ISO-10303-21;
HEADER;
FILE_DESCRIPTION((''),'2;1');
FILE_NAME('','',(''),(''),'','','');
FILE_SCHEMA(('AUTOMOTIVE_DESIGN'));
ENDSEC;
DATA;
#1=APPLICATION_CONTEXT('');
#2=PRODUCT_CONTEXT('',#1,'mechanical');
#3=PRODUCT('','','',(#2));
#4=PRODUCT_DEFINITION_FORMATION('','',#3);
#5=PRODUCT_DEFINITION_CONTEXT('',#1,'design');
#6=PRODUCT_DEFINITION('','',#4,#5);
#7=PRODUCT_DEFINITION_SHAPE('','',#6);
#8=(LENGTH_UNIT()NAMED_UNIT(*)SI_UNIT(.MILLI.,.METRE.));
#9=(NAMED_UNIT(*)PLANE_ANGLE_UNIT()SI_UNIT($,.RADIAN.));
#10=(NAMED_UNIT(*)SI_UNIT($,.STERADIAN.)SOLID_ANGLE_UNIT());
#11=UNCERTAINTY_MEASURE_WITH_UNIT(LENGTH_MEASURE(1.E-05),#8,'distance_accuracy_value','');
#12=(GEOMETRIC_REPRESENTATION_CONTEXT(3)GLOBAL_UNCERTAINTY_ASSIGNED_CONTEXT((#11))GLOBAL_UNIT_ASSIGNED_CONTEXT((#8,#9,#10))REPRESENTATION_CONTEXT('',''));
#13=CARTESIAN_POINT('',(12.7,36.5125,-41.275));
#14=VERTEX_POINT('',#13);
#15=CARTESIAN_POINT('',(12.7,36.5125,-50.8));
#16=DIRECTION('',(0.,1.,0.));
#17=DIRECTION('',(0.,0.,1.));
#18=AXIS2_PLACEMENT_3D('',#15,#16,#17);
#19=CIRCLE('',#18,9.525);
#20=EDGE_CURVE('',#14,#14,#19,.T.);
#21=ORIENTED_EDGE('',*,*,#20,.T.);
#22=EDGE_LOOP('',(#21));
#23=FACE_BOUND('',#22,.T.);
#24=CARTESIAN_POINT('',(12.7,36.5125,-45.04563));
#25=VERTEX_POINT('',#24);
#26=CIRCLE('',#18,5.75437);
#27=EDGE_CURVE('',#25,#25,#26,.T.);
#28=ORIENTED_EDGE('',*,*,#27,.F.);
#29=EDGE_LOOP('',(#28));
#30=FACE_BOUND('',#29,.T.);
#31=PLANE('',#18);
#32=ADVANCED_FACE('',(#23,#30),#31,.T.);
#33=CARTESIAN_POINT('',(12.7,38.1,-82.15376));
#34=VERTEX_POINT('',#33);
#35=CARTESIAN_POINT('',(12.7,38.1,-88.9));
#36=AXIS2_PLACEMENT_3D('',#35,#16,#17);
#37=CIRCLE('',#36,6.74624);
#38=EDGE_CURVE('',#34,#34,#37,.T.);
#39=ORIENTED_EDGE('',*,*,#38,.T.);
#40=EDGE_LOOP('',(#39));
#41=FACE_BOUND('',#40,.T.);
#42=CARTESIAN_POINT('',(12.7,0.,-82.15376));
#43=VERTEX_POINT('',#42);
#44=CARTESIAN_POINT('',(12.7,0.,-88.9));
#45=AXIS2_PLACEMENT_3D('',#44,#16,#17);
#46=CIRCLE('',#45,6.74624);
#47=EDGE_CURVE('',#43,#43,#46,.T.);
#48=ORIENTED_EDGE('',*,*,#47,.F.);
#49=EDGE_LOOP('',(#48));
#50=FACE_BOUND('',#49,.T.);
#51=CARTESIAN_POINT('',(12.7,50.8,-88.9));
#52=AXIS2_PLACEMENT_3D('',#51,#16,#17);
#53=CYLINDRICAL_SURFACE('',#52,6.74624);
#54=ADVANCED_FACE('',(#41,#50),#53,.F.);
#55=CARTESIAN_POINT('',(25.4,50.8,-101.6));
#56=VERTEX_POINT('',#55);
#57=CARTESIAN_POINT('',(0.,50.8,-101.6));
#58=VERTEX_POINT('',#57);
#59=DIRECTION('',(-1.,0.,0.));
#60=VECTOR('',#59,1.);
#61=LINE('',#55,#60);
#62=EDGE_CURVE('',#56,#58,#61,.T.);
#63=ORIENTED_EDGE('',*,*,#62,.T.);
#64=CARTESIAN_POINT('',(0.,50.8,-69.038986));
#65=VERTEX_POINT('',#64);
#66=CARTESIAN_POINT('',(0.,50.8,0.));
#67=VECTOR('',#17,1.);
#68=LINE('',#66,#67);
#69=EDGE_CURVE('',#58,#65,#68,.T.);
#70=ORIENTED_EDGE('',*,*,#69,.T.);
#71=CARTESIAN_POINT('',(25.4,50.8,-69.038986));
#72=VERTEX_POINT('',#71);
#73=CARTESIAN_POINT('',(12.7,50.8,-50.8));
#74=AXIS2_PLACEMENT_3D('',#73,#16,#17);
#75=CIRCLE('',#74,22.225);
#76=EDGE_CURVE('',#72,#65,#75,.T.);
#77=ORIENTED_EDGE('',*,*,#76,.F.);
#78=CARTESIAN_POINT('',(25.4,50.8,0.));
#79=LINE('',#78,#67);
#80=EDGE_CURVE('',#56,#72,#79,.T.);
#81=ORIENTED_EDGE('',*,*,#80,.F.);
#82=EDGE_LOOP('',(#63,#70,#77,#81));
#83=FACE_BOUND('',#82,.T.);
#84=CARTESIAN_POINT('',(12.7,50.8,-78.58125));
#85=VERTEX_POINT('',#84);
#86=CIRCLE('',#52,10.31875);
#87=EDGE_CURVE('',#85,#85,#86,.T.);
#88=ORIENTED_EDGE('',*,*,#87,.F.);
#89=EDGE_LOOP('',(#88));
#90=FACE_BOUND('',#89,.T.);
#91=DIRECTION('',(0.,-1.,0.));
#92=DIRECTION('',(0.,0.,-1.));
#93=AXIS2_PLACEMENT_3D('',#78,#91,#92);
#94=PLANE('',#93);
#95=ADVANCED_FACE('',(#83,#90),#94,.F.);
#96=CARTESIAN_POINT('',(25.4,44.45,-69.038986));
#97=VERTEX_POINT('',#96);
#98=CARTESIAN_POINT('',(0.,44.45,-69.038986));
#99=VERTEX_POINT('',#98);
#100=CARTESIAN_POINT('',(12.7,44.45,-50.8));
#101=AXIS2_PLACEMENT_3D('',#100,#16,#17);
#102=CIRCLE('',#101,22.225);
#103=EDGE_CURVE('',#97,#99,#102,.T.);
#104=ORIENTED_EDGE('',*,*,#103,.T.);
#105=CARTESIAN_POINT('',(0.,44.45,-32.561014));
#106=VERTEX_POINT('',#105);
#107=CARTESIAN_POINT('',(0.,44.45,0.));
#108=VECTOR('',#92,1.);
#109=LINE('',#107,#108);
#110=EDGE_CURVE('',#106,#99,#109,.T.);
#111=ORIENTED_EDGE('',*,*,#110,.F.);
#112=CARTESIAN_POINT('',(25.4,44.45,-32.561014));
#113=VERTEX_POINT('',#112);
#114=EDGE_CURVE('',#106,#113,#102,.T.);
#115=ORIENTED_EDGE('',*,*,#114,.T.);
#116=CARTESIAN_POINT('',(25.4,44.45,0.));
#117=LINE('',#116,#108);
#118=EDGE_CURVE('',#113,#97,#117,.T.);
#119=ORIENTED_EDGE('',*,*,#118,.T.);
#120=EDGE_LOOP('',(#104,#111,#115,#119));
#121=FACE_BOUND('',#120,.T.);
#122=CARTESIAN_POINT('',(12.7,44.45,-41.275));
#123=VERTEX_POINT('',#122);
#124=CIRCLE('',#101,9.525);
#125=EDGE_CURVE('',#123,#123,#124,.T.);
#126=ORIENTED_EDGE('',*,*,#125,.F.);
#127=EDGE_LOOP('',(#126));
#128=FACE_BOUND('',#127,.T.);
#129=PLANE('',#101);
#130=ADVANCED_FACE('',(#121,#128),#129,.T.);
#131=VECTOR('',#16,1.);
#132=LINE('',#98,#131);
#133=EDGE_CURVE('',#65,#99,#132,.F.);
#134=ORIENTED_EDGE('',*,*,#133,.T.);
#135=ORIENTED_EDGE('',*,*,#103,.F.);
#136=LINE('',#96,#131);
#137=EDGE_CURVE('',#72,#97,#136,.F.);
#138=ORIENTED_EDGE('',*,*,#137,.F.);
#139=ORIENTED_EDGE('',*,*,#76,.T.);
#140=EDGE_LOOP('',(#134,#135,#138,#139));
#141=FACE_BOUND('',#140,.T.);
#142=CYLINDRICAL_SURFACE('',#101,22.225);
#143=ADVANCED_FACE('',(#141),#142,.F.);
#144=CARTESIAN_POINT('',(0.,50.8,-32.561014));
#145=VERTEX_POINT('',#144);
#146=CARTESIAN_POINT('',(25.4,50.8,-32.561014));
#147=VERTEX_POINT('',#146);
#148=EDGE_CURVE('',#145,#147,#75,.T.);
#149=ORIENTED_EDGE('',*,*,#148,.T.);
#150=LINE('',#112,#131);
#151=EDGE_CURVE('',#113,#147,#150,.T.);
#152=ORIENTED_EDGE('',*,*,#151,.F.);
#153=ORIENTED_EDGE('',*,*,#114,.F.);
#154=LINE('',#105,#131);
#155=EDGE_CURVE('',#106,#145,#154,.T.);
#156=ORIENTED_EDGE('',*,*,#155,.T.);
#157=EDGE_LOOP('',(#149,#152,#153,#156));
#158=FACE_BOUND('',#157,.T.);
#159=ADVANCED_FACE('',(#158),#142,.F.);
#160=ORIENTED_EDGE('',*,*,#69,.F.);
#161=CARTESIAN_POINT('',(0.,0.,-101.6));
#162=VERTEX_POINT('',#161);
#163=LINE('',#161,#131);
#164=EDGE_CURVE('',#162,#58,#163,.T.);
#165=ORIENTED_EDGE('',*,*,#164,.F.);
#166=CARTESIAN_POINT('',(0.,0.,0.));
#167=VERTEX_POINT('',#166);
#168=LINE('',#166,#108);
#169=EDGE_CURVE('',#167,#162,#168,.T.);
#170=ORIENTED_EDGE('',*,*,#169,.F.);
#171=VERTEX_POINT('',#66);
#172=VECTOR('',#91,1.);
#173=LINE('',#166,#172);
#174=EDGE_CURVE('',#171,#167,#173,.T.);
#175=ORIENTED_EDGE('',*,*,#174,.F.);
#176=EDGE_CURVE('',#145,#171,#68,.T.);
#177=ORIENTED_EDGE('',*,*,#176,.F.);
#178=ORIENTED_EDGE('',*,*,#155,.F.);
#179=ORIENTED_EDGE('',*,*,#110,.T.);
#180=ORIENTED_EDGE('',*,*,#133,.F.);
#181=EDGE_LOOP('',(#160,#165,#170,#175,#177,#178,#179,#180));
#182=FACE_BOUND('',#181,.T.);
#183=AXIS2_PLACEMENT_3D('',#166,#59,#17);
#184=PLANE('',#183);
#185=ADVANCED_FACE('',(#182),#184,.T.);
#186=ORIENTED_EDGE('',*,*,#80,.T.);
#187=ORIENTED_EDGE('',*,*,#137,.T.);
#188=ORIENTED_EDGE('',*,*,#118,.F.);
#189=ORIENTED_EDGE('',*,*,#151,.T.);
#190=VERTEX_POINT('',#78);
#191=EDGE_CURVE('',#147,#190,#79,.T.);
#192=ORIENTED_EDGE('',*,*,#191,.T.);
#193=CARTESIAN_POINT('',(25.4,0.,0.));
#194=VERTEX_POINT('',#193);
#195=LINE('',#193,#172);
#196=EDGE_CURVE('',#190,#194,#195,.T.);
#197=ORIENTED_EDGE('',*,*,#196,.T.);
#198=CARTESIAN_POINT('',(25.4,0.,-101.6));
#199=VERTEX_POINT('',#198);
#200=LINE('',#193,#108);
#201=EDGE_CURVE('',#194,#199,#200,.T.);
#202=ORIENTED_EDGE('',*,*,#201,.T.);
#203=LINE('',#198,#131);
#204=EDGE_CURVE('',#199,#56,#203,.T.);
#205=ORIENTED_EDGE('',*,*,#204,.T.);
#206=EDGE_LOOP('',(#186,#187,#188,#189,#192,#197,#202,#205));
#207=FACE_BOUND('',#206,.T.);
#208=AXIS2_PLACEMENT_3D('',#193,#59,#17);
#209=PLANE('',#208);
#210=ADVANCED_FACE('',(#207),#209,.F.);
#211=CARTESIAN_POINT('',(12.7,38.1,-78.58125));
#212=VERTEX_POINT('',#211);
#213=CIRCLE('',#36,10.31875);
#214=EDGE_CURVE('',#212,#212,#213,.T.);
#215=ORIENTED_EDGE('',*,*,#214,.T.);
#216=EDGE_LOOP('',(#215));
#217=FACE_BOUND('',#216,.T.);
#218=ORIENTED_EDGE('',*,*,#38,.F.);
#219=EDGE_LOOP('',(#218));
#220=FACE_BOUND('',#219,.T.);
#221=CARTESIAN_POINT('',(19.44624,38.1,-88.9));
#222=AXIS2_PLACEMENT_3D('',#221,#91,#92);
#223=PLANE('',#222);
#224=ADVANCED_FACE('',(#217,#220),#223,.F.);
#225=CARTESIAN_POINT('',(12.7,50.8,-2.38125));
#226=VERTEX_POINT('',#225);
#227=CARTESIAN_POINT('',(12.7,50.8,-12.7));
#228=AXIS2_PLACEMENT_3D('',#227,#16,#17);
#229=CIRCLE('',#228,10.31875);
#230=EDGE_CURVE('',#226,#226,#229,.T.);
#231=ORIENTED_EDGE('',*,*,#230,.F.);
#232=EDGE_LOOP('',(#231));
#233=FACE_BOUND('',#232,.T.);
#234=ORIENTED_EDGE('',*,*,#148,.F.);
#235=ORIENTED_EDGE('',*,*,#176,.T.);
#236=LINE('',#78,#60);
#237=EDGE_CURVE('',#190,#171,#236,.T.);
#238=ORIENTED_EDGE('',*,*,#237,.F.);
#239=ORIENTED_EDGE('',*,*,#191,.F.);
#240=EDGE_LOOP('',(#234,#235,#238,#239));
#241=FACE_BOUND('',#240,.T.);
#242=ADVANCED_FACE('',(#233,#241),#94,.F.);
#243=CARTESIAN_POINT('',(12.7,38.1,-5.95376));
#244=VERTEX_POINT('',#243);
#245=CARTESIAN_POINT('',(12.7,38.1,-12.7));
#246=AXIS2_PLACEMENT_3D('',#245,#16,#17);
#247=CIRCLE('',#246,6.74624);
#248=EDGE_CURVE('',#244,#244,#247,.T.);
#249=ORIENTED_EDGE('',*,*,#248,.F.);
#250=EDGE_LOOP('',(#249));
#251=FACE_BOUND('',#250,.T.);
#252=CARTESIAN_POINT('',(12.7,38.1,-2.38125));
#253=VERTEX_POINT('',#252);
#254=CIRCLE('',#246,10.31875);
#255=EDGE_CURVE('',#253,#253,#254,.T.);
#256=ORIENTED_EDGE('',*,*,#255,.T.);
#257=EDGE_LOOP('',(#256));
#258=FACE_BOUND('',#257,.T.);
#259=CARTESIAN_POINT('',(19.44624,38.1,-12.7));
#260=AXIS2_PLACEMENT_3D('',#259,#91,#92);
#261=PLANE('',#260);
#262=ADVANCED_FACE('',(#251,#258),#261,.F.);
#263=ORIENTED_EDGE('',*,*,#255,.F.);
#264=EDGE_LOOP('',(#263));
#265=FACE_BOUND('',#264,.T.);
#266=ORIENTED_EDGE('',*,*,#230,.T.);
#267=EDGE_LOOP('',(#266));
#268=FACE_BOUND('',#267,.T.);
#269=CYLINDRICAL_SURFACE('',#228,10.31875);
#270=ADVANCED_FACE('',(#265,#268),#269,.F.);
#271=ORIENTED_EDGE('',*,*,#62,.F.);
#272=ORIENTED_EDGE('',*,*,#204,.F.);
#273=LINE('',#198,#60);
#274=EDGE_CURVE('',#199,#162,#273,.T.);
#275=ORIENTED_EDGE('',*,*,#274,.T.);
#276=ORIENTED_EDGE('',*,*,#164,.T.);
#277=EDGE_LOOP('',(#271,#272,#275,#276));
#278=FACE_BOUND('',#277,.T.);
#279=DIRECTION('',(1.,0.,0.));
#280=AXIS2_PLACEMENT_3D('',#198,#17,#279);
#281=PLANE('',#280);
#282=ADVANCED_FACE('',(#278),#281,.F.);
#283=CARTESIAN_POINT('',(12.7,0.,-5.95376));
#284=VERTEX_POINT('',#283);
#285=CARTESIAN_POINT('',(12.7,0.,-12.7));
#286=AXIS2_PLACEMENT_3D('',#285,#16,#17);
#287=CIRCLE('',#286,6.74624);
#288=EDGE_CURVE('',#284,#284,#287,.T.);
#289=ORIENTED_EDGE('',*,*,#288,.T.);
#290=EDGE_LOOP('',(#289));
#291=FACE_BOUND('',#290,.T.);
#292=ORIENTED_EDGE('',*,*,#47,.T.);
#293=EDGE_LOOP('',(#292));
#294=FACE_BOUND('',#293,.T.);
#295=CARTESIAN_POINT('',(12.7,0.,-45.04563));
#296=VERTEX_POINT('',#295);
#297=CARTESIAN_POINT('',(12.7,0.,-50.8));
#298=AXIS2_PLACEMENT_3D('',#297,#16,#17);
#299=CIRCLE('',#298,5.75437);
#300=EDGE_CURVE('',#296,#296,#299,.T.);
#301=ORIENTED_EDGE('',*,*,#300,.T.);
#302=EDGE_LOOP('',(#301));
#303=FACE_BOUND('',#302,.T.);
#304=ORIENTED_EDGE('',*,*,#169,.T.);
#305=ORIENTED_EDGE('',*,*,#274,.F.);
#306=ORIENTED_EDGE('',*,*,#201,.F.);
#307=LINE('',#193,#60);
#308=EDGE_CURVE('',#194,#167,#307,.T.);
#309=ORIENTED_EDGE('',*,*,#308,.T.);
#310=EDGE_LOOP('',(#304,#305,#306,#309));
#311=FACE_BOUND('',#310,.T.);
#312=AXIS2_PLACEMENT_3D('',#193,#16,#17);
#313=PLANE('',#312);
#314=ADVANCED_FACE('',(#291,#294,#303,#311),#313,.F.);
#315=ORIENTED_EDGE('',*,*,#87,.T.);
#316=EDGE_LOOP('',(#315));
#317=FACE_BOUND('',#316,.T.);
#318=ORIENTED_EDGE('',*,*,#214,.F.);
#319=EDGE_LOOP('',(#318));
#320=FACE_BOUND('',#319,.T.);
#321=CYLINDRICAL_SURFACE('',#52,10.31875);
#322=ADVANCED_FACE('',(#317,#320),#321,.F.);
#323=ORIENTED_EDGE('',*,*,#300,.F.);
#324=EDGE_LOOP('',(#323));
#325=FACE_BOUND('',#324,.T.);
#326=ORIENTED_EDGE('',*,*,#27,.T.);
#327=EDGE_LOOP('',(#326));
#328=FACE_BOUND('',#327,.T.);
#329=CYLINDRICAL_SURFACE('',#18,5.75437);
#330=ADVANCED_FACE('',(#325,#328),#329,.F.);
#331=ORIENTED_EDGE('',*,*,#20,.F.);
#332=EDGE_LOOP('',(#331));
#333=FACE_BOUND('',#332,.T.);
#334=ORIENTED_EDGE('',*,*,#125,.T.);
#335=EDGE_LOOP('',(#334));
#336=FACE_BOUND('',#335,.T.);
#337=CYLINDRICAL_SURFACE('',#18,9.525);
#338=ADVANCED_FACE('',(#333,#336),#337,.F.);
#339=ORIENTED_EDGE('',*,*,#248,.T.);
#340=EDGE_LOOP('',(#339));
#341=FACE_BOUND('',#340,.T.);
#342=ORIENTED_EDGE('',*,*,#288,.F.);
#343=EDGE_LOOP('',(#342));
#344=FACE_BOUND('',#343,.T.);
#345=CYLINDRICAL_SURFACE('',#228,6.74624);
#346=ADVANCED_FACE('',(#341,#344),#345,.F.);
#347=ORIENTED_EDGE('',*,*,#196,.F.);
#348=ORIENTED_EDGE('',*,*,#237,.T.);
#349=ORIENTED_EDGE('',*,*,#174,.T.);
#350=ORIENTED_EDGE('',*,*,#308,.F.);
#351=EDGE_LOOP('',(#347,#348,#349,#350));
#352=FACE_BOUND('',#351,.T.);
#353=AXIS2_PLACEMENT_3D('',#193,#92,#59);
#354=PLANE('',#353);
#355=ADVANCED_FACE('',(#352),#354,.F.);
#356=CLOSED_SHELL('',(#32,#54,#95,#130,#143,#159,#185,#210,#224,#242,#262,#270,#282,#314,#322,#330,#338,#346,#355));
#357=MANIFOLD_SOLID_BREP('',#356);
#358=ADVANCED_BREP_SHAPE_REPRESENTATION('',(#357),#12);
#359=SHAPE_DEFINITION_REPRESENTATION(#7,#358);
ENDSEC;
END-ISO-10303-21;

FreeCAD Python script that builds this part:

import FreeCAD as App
import Part
import Sketcher
from FreeCAD import Vector
Q = App.Units.Quantity


def add_polygon(sketch, points):
    """Adds a closed chain of lines whose ends are joined by coincident constraints."""
    first, n = sketch.GeometryCount, len(points)
    for a, b in zip(points, points[1:] + points[:1]):
        sketch.addGeometry(Part.LineSegment(App.Vector(*a, 0), App.Vector(*b, 0)), False)
    for i in range(n):
        sketch.addConstraint(Sketcher.Constraint("Coincident", first + i, 2, first + (i + 1) % n, 1))

doc = App.newDocument("Part")
params = doc.addObject("Spreadsheet::Sheet", "Params")
for row, (alias, value) in enumerate([
    ("sketch1_width", "2 in"),
    ("sketch1_height", "4 in"),
    ("pad1_length", "1 in"),
    ("sketch2_diameter", "1.75 in"),
    ("pocket1_length", "0.25 in"),
    ("sketch3_diameter", "0.75 in"),
    ("pocket2_length", "0.3125 in"),
    ("hole_diameter", "0.4531 in"),
    ("hole2_diameter", "0.5312 in"),
    ("hole2_cbore_diameter", "0.8125 in"),
    ("hole2_cbore_depth", "0.5 in"),
], start=1):
    params.set(f"A{row}", alias)
    params.set(f"B{row}", "=" + value)
    params.setAlias(f"B{row}", alias)

body = doc.addObject("PartDesign::Body", "Body")

# Sketch on YZ plane
sketch1 = doc.addObject("Sketcher::SketchObject", "Sketch")
body.addObject(sketch1)
sketch1.AttachmentSupport = (doc.YZ_Plane, [""])
sketch1.MapMode = "FlatFace"
add_polygon(sketch1, [(51, 0), (0, 0), (0, -102), (51, -102)])  # lines 0-3
sketch1.addConstraint([
    Sketcher.Constraint("Horizontal", 0),
    Sketcher.Constraint("Vertical", 1),
    Sketcher.Constraint("Horizontal", 2),
    Sketcher.Constraint("Vertical", 3),
    Sketcher.Constraint("Coincident", 0, 2, -1, 1),
    Sketcher.Constraint("DistanceX", 0, 2, 0, 1, Q("2 in")),
    Sketcher.Constraint("DistanceY", 1, 2, 1, 1, Q("4 in")),
])
sketch1.setExpression("Constraints[9]", "Params.sketch1_width")
sketch1.setExpression("Constraints[10]", "Params.sketch1_height")
pad1 = doc.addObject("PartDesign::Pad", "Pad")
body.addObject(pad1)
pad1.Profile = sketch1
pad1.setExpression("Length", "Params.pad1_length")

# Sketch on XZ plane
sketch2 = doc.addObject("Sketcher::SketchObject", "Sketch001")
body.addObject(sketch2)
sketch2.AttachmentSupport = (doc.XZ_Plane, [""])
sketch2.MapMode = "FlatFace"
sketch2.AttachmentOffset = App.Placement(Vector(0, 0, -2 * 25.4), App.Rotation())
sketch2.addGeometry(Part.Circle(Vector(13, -51, 0), Vector(0, 0, 1), 22), False)
sketch2.addConstraint([
    Sketcher.Constraint("Diameter", 0, Q("1.75 in")),
    Sketcher.Constraint("DistanceY", 0, 3, -1, 1, Q("2 in")),
    Sketcher.Constraint("DistanceX", -1, 1, 0, 3, Q("0.5 in")),
])
sketch2.setExpression("Constraints[0]", "Params.sketch2_diameter")
pocket1 = doc.addObject("PartDesign::Pocket", "Pocket")
body.addObject(pocket1)
pocket1.Profile = sketch2
pocket1.setExpression("Length", "Params.pocket1_length")
pocket1.Reversed = True

# Sketch on XZ plane
sketch3 = doc.addObject("Sketcher::SketchObject", "Sketch002")
body.addObject(sketch3)
sketch3.AttachmentSupport = (doc.XZ_Plane, [""])
sketch3.MapMode = "FlatFace"
sketch3.AttachmentOffset = App.Placement(Vector(0, 0, -1.75 * 25.4), App.Rotation())
sketch3.addGeometry(Part.Circle(Vector(13, -51, 0), Vector(0, 0, 1), 10), False)
sketch3.addConstraint([
    Sketcher.Constraint("Diameter", 0, Q("0.75 in")),
    Sketcher.Constraint("DistanceY", 0, 3, -1, 1, Q("2 in")),
    Sketcher.Constraint("DistanceX", -1, 1, 0, 3, Q("0.5 in")),
])
sketch3.setExpression("Constraints[0]", "Params.sketch3_diameter")
pocket2 = doc.addObject("PartDesign::Pocket", "Pocket001")
body.addObject(pocket2)
pocket2.Profile = sketch3
pocket2.setExpression("Length", "Params.pocket2_length")
pocket2.Reversed = True

# Sketch on XZ plane
sketch4 = doc.addObject("Sketcher::SketchObject", "Sketch003")
body.addObject(sketch4)
sketch4.AttachmentSupport = (doc.XZ_Plane, [""])
sketch4.MapMode = "FlatFace"
sketch4.AttachmentOffset = App.Placement(Vector(0, 0, -1.4375 * 25.4), App.Rotation())
sketch4.addGeometry(Part.Circle(Vector(13, -51, 0), Vector(0, 0, 1), 6), False)
sketch4.addConstraint([
    Sketcher.Constraint("DistanceY", 0, 3, -1, 1, Q("2 in")),
    Sketcher.Constraint("Diameter", 0, Q("0.4531 in")),
    Sketcher.Constraint("DistanceX", -1, 1, 0, 3, Q("0.5 in")),
])
doc.recompute()
hole = doc.addObject("PartDesign::Hole", "Hole")
body.addObject(hole)
hole.Profile = sketch4
hole.ThreadType = "None"
hole.setExpression("Diameter", "Params.hole_diameter")
hole.DepthType = "ThroughAll"
hole.Reversed = True

# Sketch on XZ plane
sketch5 = doc.addObject("Sketcher::SketchObject", "Sketch004")
body.addObject(sketch5)
sketch5.AttachmentSupport = (doc.XZ_Plane, [""])
sketch5.MapMode = "FlatFace"
sketch5.AttachmentOffset = App.Placement(Vector(0, 0, -2 * 25.4), App.Rotation())
sketch5.addGeometry([
    Part.Circle(Vector(13, -89, 0), Vector(0, 0, 1), 7),
    Part.Circle(Vector(13, -13, 0), Vector(0, 0, 1), 7),
], False)
sketch5.addConstraint([
    Sketcher.Constraint("Equal", 0, 1),
    Sketcher.Constraint("Vertical", 0, 3, 1, 3),
    Sketcher.Constraint("DistanceY", 0, 3, 1, 3, Q("3 in")),
    Sketcher.Constraint("Diameter", 0, Q("0.5312 in")),
    Sketcher.Constraint("DistanceX", -1, 1, 0, 3, Q("0.5 in")),
    Sketcher.Constraint("DistanceY", 0, 3, -1, 1, Q("3.5 in")),
])
doc.recompute()
hole2 = doc.addObject("PartDesign::Hole", "Hole001")
body.addObject(hole2)
hole2.Profile = sketch5
hole2.ThreadType = "None"
hole2.setExpression("Diameter", "Params.hole2_diameter")
hole2.DepthType = "ThroughAll"
hole2.HoleCutType = "Counterbore"
hole2.setExpression("HoleCutDiameter", "Params.hole2_cbore_diameter")
hole2.setExpression("HoleCutDepth", "Params.hole2_cbore_depth")
hole2.Reversed = True

doc.recompute()
